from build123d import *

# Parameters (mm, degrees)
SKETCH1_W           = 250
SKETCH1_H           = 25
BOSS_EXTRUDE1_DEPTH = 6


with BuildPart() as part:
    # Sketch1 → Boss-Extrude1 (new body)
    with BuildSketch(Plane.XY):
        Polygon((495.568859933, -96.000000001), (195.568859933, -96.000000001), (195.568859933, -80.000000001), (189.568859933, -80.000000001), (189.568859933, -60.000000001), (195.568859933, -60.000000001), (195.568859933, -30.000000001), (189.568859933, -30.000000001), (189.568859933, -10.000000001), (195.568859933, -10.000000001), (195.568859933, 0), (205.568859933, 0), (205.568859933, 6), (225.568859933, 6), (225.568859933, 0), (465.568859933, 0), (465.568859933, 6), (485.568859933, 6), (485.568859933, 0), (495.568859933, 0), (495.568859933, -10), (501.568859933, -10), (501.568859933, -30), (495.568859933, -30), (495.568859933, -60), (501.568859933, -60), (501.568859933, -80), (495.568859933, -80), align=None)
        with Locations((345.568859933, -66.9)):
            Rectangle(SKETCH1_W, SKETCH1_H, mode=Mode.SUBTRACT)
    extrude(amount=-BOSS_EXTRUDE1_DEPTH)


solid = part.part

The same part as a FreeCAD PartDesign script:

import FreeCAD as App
import Part
import Sketcher
Q = App.Units.Quantity


def add_polygon(sketch, points):
    """Adds a closed chain of lines whose ends are joined by coincident constraints."""
    first, n = sketch.GeometryCount, len(points)
    for a, b in zip(points, points[1:] + points[:1]):
        sketch.addGeometry(Part.LineSegment(App.Vector(*a, 0), App.Vector(*b, 0)), False)
    for i in range(n):
        sketch.addConstraint(Sketcher.Constraint("Coincident", first + i, 2, first + (i + 1) % n, 1))

doc = App.newDocument("Part")
body = doc.addObject("PartDesign::Body", "Body")

sketch1 = body.newObject("Sketcher::SketchObject", "Sketch")
sketch1.AttachmentSupport = (doc.getObject("XY_Plane"), [""])
sketch1.MapMode = "FlatFace"
add_polygon(sketch1, [(196, -96), (496, -96), (496, -80), (502, -80), (502, -60), (496, -60), (496, -30), (502, -30), (502, -10), (496, -10), (496, 0), (486, 0), (486, 6), (466, 6), (466, 0), (226, 0), (226, 6), (206, 6), (206, 0), (196, 0), (196, -10), (190, -10), (190, -30), (196, -30), (196, -60), (190, -60), (190, -80), (196, -80)])
add_polygon(sketch1, [(221, -79), (221, -54), (471, -54), (471, -79)])
sketch1.addConstraint([
    Sketcher.Constraint("Horizontal", 0),
    Sketcher.Constraint("Vertical", 1),
    Sketcher.Constraint("Horizontal", 2),
    Sketcher.Constraint("Vertical", 3),
    Sketcher.Constraint("Horizontal", 4),
    Sketcher.Constraint("Vertical", 5),
    Sketcher.Constraint("Horizontal", 6),
    Sketcher.Constraint("Vertical", 7),
    Sketcher.Constraint("Horizontal", 8),
    Sketcher.Constraint("Vertical", 9),
    Sketcher.Constraint("Horizontal", 10),
    Sketcher.Constraint("Vertical", 11),
    Sketcher.Constraint("Horizontal", 12),
    Sketcher.Constraint("Vertical", 13),
    Sketcher.Constraint("Horizontal", 14),
    Sketcher.Constraint("Vertical", 15),
    Sketcher.Constraint("Horizontal", 16),
    Sketcher.Constraint("Vertical", 17),
    Sketcher.Constraint("Horizontal", 18),
    Sketcher.Constraint("Vertical", 19),
    Sketcher.Constraint("Horizontal", 20),
    Sketcher.Constraint("Vertical", 21),
    Sketcher.Constraint("Horizontal", 22),
    Sketcher.Constraint("Vertical", 23),
    Sketcher.Constraint("Horizontal", 24),
    Sketcher.Constraint("Vertical", 25),
    Sketcher.Constraint("Horizontal", 26),
    Sketcher.Constraint("Vertical", 27),
    Sketcher.Constraint("Vertical", 28),
    Sketcher.Constraint("Horizontal", 29),
    Sketcher.Constraint("Vertical", 30),
    Sketcher.Constraint("Horizontal", 31),
    Sketcher.Constraint("PointOnObject", 9, 2, -1),
    Sketcher.Constraint("PointOnObject", 13, 2, -1),
    Sketcher.Constraint("PointOnObject", 17, 2, -1),
    Sketcher.Constraint("Horizontal", 12, 2, 15, 2),
    Sketcher.Constraint("Horizontal", 8, 2, 19, 2),
    Sketcher.Constraint("Horizontal", 6, 2, 21, 2),
    Sketcher.Constraint("Horizontal", 4, 2, 23, 2),
    Sketcher.Constraint("Horizontal", 2, 2, 25, 2),
    Sketcher.Constraint("Vertical", 1, 2, 4, 2),
    Sketcher.Constraint("Vertical", 3, 2, 6, 2),
    Sketcher.Constraint("Vertical", 5, 2, 8, 2),
    Sketcher.Constraint("Vertical", 19, 2, 22, 2),
    Sketcher.Constraint("Vertical", 21, 2, 24, 2),
    Sketcher.Constraint("Vertical", 23, 2, 26, 2),
    Sketcher.Constraint("Equal", 12, 16),
    Sketcher.Constraint("Equal", 10, 18),
    Sketcher.Constraint("Equal", 8, 20),
    Sketcher.Constraint("Equal", 16, 3),
    Sketcher.Constraint("Equal", 3, 7),
    Sketcher.Constraint("Equal", 18, 9),
    Sketcher.Constraint("Equal", 26, 11),
    Sketcher.Constraint("DistanceX", 0, 1, 0, 2, Q("300 mm")),
    Sketcher.Constraint("DistanceX", 2, 1, 2, 2, Q("6 mm")),
    Sketcher.Constraint("DistanceX", 10, 2, 10, 1, Q("10 mm")),
    Sketcher.Constraint("DistanceX", 12, 2, 12, 1, Q("20 mm")),
    Sketcher.Constraint("DistanceX", 29, 1, 29, 2, Q("250 mm")),
    Sketcher.Constraint("DistanceY", 1, 1, 1, 2, Q("16 mm")),
    Sketcher.Constraint("DistanceY", 5, 1, 5, 2, Q("30 mm")),
    Sketcher.Constraint("DistanceY", 28, 1, 28, 2, Q("25 mm")),
    Sketcher.Constraint("DistanceX", 23, 2, 28, 2, Q("25 mm")),
    Sketcher.Constraint("DistanceY", 28, 2, -1, 1, Q("54.4 mm")),
    Sketcher.Constraint("DistanceX", -1, 1, 0, 2, Q("495.56886 mm")),
])
pad1 = body.newObject("PartDesign::Pad", "Pad")
pad1.Profile = sketch1
pad1.Length = 6
pad1.Reversed = True

doc.recompute()
